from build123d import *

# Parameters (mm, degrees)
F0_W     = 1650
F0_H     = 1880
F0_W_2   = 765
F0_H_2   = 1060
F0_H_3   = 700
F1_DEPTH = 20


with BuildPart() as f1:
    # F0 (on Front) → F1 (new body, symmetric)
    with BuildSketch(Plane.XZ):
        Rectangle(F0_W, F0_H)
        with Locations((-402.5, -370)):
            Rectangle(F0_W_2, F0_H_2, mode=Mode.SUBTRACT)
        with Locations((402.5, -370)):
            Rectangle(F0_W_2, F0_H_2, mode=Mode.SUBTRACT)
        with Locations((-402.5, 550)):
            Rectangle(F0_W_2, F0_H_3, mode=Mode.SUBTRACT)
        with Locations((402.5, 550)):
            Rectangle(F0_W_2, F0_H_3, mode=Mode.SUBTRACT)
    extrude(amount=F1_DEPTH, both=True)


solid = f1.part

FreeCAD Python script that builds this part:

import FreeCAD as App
import Part
import Sketcher

doc = App.newDocument("Part")
params = doc.addObject("Spreadsheet::Sheet", "Params")
for row, (alias, value) in enumerate([
    ("sketch1_width", "1650 mm"),
    ("sketch1_width2", "765 mm"),
    ("sketch1_height", "1880 mm"),
    ("sketch1_height2", "1060 mm"),
    ("sketch1_height3", "700 mm"),
    ("pad1_length", "40 mm"),
], start=1):
    params.set(f"A{row}", alias)
    params.set(f"B{row}", "=" + value)
    params.setAlias(f"B{row}", alias)

body = doc.addObject("PartDesign::Body", "Body")

# Sketch on XZ plane
sketch1 = body.newObject("Sketcher::SketchObject", "Sketch")
sketch1.AttachmentSupport = (doc.getObject("XZ_Plane"), [""])
sketch1.MapMode = "FlatFace"
sketch1.addGeometry([
    Part.LineSegment(App.Vector(-825, 940, 0), App.Vector(-825, -940, 0)),  # 0
    Part.LineSegment(App.Vector(-825, -940, 0), App.Vector(825, -940, 0)),  # 1
    Part.LineSegment(App.Vector(825, -940, 0), App.Vector(825, 940, 0)),  # 2
    Part.LineSegment(App.Vector(825, 940, 0), App.Vector(-825, 940, 0)),  # 3
    Part.LineSegment(App.Vector(-20, -900, 0), App.Vector(-785, -900, 0)),  # 4
    Part.LineSegment(App.Vector(-785, -900, 0), App.Vector(-785, 160, 0)),  # 5
    Part.LineSegment(App.Vector(-785, 160, 0), App.Vector(-20, 160, 0)),  # 6
    Part.LineSegment(App.Vector(-20, 160, 0), App.Vector(-20, -900, 0)),  # 7
    Part.LineSegment(App.Vector(785, -900, 0), App.Vector(20, -900, 0)),  # 8
    Part.LineSegment(App.Vector(20, -900, 0), App.Vector(20, 160, 0)),  # 9
    Part.LineSegment(App.Vector(20, 160, 0), App.Vector(785, 160, 0)),  # 10
    Part.LineSegment(App.Vector(785, 160, 0), App.Vector(785, -900, 0)),  # 11
    Part.LineSegment(App.Vector(-20, 200, 0), App.Vector(-785, 200, 0)),  # 12
    Part.LineSegment(App.Vector(-785, 200, 0), App.Vector(-785, 900, 0)),  # 13
    Part.LineSegment(App.Vector(-785, 900, 0), App.Vector(-20, 900, 0)),  # 14
    Part.LineSegment(App.Vector(-20, 900, 0), App.Vector(-20, 200, 0)),  # 15
    Part.LineSegment(App.Vector(785, 200, 0), App.Vector(20, 200, 0)),  # 16
    Part.LineSegment(App.Vector(20, 200, 0), App.Vector(20, 900, 0)),  # 17
    Part.LineSegment(App.Vector(20, 900, 0), App.Vector(785, 900, 0)),  # 18
    Part.LineSegment(App.Vector(785, 900, 0), App.Vector(785, 200, 0)),  # 19
], False)
sketch1.addConstraint([
    Sketcher.Constraint("Coincident", 0, 2, 1, 1),
    Sketcher.Constraint("Coincident", 1, 2, 2, 1),
    Sketcher.Constraint("Coincident", 2, 2, 3, 1),
    Sketcher.Constraint("Coincident", 3, 2, 0, 1),
    Sketcher.Constraint("Coincident", 4, 2, 5, 1),
    Sketcher.Constraint("Coincident", 5, 2, 6, 1),
    Sketcher.Constraint("Coincident", 6, 2, 7, 1),
    Sketcher.Constraint("Coincident", 7, 2, 4, 1),
    Sketcher.Constraint("Coincident", 8, 2, 9, 1),
    Sketcher.Constraint("Coincident", 9, 2, 10, 1),
    Sketcher.Constraint("Coincident", 10, 2, 11, 1),
    Sketcher.Constraint("Coincident", 11, 2, 8, 1),
    Sketcher.Constraint("Coincident", 12, 2, 13, 1),
    Sketcher.Constraint("Coincident", 13, 2, 14, 1),
    Sketcher.Constraint("Coincident", 14, 2, 15, 1),
    Sketcher.Constraint("Coincident", 15, 2, 12, 1),
    Sketcher.Constraint("Coincident", 16, 2, 17, 1),
    Sketcher.Constraint("Coincident", 17, 2, 18, 1),
    Sketcher.Constraint("Coincident", 18, 2, 19, 1),
    Sketcher.Constraint("Coincident", 19, 2, 16, 1),
    Sketcher.Constraint("Vertical", 0),
    Sketcher.Constraint("Horizontal", 1),
    Sketcher.Constraint("Vertical", 2),
    Sketcher.Constraint("Horizontal", 3),
    Sketcher.Constraint("Horizontal", 4),
    Sketcher.Constraint("Vertical", 5),
    Sketcher.Constraint("Horizontal", 6),
    Sketcher.Constraint("Vertical", 7),
    Sketcher.Constraint("Horizontal", 8),
    Sketcher.Constraint("Vertical", 9),
    Sketcher.Constraint("Horizontal", 10),
    Sketcher.Constraint("Vertical", 11),
    Sketcher.Constraint("Horizontal", 12),
    Sketcher.Constraint("Vertical", 13),
    Sketcher.Constraint("Horizontal", 14),
    Sketcher.Constraint("Vertical", 15),
    Sketcher.Constraint("Horizontal", 16),
    Sketcher.Constraint("Vertical", 17),
    Sketcher.Constraint("Horizontal", 18),
    Sketcher.Constraint("Vertical", 19),
    Sketcher.Constraint("Symmetric", 0, 2, 2, 2, -1, 1),
    Sketcher.Constraint("Symmetric", 11, 2, 13, 2, -1, 1),
    Sketcher.Constraint("Symmetric", 7, 2, 17, 2, -1, 1),
    Sketcher.Constraint("Symmetric", 7, 2, 8, 2, -2),
    Sketcher.Constraint("Symmetric", 5, 2, 10, 2, -2),
    Sketcher.Constraint("Symmetric", 15, 2, 16, 2, -2),
    Sketcher.Constraint("Vertical", 11, 2, 18, 2),
    Sketcher.Constraint("DistanceX", 1, 1, 1, 2, 1650.0),
    Sketcher.Constraint("DistanceX", 4, 2, 4, 1, 765.0),
    Sketcher.Constraint("DistanceY", 0, 2, 0, 1, 1880.0),
    Sketcher.Constraint("DistanceY", 5, 1, 5, 2, 1060.0),
    Sketcher.Constraint("DistanceY", 13, 1, 13, 2, 700.0),
    Sketcher.Constraint("DistanceX", 4, 2, -1, 1, 785.0),
    Sketcher.Constraint("DistanceY", 4, 2, -1, 1, 900.0),
])
sketch1.setExpression("Constraints[47]", "Params.sketch1_width")
sketch1.setExpression("Constraints[48]", "Params.sketch1_width2")
sketch1.setExpression("Constraints[49]", "Params.sketch1_height")
sketch1.setExpression("Constraints[50]", "Params.sketch1_height2")
sketch1.setExpression("Constraints[51]", "Params.sketch1_height3")
pad1 = body.newObject("PartDesign::Pad", "Pad")
pad1.Profile = sketch1
pad1.setExpression("Length", "Params.pad1_length")
pad1.Midplane = True

doc.recompute()
